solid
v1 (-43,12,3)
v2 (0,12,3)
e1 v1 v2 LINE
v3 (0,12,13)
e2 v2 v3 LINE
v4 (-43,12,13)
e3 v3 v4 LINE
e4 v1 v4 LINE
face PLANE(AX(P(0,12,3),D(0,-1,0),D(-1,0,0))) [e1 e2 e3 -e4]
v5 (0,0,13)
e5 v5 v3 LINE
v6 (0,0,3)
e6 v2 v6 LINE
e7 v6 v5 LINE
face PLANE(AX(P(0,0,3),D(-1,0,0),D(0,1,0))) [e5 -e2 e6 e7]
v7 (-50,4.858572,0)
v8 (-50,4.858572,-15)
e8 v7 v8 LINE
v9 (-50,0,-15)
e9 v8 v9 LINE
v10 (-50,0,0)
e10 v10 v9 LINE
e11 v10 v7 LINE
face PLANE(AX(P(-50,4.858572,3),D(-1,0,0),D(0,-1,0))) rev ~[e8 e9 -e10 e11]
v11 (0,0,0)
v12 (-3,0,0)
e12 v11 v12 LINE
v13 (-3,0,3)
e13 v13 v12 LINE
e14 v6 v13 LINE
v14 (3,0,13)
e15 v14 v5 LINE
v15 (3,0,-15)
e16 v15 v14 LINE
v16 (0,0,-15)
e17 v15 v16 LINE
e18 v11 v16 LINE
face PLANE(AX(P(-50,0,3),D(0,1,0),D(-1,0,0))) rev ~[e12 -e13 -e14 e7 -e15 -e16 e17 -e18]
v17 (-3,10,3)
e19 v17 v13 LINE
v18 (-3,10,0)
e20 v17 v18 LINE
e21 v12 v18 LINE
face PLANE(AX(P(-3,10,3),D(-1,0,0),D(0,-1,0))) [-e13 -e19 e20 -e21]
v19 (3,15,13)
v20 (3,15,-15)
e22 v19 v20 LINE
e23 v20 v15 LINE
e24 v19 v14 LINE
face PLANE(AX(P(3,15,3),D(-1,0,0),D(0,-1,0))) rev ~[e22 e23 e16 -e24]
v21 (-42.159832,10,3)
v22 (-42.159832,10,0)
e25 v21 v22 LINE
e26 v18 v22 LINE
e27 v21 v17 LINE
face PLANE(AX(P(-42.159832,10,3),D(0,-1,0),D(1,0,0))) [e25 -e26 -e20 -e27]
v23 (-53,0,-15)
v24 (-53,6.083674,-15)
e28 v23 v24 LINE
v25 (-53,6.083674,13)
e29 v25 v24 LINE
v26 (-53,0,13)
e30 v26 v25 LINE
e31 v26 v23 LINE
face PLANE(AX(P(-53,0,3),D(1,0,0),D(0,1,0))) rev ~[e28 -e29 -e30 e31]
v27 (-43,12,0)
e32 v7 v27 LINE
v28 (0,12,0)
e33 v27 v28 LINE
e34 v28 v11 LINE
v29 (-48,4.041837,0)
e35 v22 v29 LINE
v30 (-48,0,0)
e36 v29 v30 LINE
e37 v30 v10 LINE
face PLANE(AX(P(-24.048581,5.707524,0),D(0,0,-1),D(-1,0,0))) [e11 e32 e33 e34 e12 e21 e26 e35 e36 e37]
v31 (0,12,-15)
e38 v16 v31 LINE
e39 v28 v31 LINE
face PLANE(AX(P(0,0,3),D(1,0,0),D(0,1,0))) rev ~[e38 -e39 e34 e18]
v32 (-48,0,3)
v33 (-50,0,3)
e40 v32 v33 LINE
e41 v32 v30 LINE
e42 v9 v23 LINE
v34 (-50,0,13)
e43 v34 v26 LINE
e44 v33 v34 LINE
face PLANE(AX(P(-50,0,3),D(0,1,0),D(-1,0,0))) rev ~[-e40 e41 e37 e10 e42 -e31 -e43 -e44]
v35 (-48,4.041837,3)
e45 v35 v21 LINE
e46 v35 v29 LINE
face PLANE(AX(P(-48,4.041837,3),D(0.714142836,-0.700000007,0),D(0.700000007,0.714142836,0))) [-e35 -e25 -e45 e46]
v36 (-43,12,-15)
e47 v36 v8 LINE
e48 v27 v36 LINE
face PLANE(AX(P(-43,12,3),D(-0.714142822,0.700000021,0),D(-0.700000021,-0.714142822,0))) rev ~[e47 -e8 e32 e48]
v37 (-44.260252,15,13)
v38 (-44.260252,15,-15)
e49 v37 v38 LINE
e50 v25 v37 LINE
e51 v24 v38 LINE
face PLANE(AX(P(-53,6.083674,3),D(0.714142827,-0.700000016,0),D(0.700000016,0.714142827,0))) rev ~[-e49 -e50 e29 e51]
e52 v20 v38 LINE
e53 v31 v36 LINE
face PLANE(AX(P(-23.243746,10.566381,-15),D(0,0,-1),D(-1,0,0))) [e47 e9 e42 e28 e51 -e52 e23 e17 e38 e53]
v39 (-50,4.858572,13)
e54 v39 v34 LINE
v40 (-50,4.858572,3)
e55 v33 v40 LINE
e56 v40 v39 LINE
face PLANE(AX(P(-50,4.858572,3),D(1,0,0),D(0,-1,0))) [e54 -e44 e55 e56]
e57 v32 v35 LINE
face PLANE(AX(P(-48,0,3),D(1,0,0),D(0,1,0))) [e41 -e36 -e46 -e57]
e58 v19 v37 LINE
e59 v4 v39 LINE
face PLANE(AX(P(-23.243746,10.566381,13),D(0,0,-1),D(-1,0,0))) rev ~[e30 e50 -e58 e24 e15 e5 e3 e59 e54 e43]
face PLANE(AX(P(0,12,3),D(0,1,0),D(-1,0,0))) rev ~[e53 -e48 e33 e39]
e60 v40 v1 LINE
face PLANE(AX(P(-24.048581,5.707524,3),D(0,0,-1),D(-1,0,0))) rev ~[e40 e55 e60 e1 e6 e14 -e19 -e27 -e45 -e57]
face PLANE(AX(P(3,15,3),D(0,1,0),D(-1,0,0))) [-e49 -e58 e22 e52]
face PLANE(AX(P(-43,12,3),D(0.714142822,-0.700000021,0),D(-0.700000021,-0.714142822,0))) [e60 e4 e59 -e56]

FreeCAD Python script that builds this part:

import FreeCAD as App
import Part
import Sketcher
from FreeCAD import Vector
Q = App.Units.Quantity

doc = App.newDocument("Part")
params = doc.addObject("Spreadsheet::Sheet", "Params")
for row, (alias, value) in enumerate([
    ("sketch1_width", "43 mm"),
    ("sketch1_width2", "50 mm"),
    ("sketch1_height", "12 mm"),
    ("sketch1_length", "10 mm"),
    ("pad1_length", "3 mm"),
    ("sketch2_width", "3 mm"),
    ("sketch2_width2", "43 mm"),
    ("sketch2_height", "12 mm"),
    ("sketch2_height2", "15 mm"),
    ("sketch2_length", "10 mm"),
    ("pad2_length", "10 mm"),
    ("pad2_length2", "18 mm"),
    ("sketch3_width", "45 mm"),
    ("sketch3_height", "10 mm"),
    ("pocket1_length", "5 mm"),
], start=1):
    params.set(f"A{row}", alias)
    params.set(f"B{row}", "=" + value)
    params.setAlias(f"B{row}", alias)

body = doc.addObject("PartDesign::Body", "Body")

# Sketch on XY plane
sketch1 = body.newObject("Sketcher::SketchObject", "Sketch")
sketch1.AttachmentSupport = (doc.getObject("XY_Plane"), [""])
sketch1.MapMode = "FlatFace"
sketch1.addGeometry(Part.LineSegment(Vector(0, 12, 0), Vector(-43, 12, 0)), False)
sketch1.addGeometry(Part.LineSegment(Vector(-43, 12, 0), Vector(-50, 4.9, 0)), False)
sketch1.addGeometry(Part.LineSegment(Vector(-50, 4.9, 0), Vector(-50, 0, 0)), False)
sketch1.addGeometry(Part.LineSegment(Vector(-50, 0, 0), Vector(0, 0, 0)), False)
sketch1.addGeometry(Part.LineSegment(Vector(0, 0, 0), Vector(0, 12, 0)), False)
sketch1.addConstraint(Sketcher.Constraint("Coincident", 0, 2, 1, 1))
sketch1.addConstraint(Sketcher.Constraint("Coincident", 1, 2, 2, 1))
sketch1.addConstraint(Sketcher.Constraint("Coincident", 2, 2, 3, 1))
sketch1.addConstraint(Sketcher.Constraint("Coincident", 3, 2, 4, 1))
sketch1.addConstraint(Sketcher.Constraint("Coincident", 4, 2, 0, 1))
sketch1.addConstraint(Sketcher.Constraint("Horizontal", 0))
sketch1.addConstraint(Sketcher.Constraint("Vertical", 2))
sketch1.addConstraint(Sketcher.Constraint("Horizontal", 3))
sketch1.addConstraint(Sketcher.Constraint("Vertical", 4))
sketch1.addConstraint(Sketcher.Constraint("Coincident", 3, 2, -1, 1))
sketch1.addConstraint(Sketcher.Constraint("DistanceX", 0, 2, 0, 1, Q("43 mm")))
sketch1.addConstraint(Sketcher.Constraint("DistanceX", 3, 1, 3, 2, Q("50 mm")))
sketch1.addConstraint(Sketcher.Constraint("DistanceY", 4, 1, 4, 2, Q("12 mm")))
sketch1.addConstraint(Sketcher.Constraint("Distance", 1, Q("10 mm")))
sketch1.setExpression("Constraints[10]", "Params.sketch1_width")
sketch1.setExpression("Constraints[11]", "Params.sketch1_width2")
sketch1.setExpression("Constraints[12]", "Params.sketch1_height")
sketch1.setExpression("Constraints[13]", "Params.sketch1_length")
pad1 = body.newObject("PartDesign::Pad", "Pad")
pad1.Profile = sketch1
pad1.setExpression("Length", "Params.pad1_length")

# Sketch on XY plane
sketch2 = body.newObject("Sketcher::SketchObject", "Sketch001")
sketch2.AttachmentSupport = (doc.getObject("XY_Plane"), [""])
sketch2.MapMode = "FlatFace"
sketch2.AttachmentOffset = App.Placement(Vector(0, 0, 3), App.Rotation())
sketch2.addGeometry(Part.LineSegment(Vector(-53, 0, 0), Vector(-50, 0, 0)), False)
sketch2.addGeometry(Part.LineSegment(Vector(-50, 0, 0), Vector(-50, 4.9, 0)), False)
sketch2.addGeometry(Part.LineSegment(Vector(-50, 4.9, 0), Vector(-43, 12, 0)), False)
sketch2.addGeometry(Part.LineSegment(Vector(-43, 12, 0), Vector(0, 12, 0)), False)
sketch2.addGeometry(Part.LineSegment(Vector(0, 12, 0), Vector(0, 0, 0)), False)
sketch2.addGeometry(Part.LineSegment(Vector(0, 0, 0), Vector(3, 0, 0)), False)
sketch2.addGeometry(Part.LineSegment(Vector(3, 0, 0), Vector(3, 15, 0)), False)
sketch2.addGeometry(Part.LineSegment(Vector(3, 15, 0), Vector(-44.3, 15, 0)), False)
sketch2.addGeometry(Part.LineSegment(Vector(-44.3, 15, 0), Vector(-53, 6.1, 0)), False)
sketch2.addGeometry(Part.LineSegment(Vector(-53, 6.1, 0), Vector(-53, 0, 0)), False)
sketch2.addConstraint(Sketcher.Constraint("Coincident", 0, 2, 1, 1))
sketch2.addConstraint(Sketcher.Constraint("Coincident", 1, 2, 2, 1))
sketch2.addConstraint(Sketcher.Constraint("Coincident", 2, 2, 3, 1))
sketch2.addConstraint(Sketcher.Constraint("Coincident", 3, 2, 4, 1))
sketch2.addConstraint(Sketcher.Constraint("Coincident", 4, 2, 5, 1))
sketch2.addConstraint(Sketcher.Constraint("Coincident", 5, 2, 6, 1))
sketch2.addConstraint(Sketcher.Constraint("Coincident", 6, 2, 7, 1))
sketch2.addConstraint(Sketcher.Constraint("Coincident", 7, 2, 8, 1))
sketch2.addConstraint(Sketcher.Constraint("Coincident", 8, 2, 9, 1))
sketch2.addConstraint(Sketcher.Constraint("Coincident", 9, 2, 0, 1))
sketch2.addConstraint(Sketcher.Constraint("Horizontal", 0))
sketch2.addConstraint(Sketcher.Constraint("Vertical", 1))
sketch2.addConstraint(Sketcher.Constraint("Horizontal", 3))
sketch2.addConstraint(Sketcher.Constraint("Vertical", 4))
sketch2.addConstraint(Sketcher.Constraint("Horizontal", 5))
sketch2.addConstraint(Sketcher.Constraint("Vertical", 6))
sketch2.addConstraint(Sketcher.Constraint("Horizontal", 7))
sketch2.addConstraint(Sketcher.Constraint("Vertical", 9))
sketch2.addConstraint(Sketcher.Constraint("Coincident", 4, 2, -1, 1))
sketch2.addConstraint(Sketcher.Constraint("PointOnObject", 0, 2, -1))
sketch2.addConstraint(Sketcher.Constraint("Parallel", 2, 8))
sketch2.addConstraint(Sketcher.Constraint("Equal", 0, 5))
sketch2.addConstraint(Sketcher.Constraint("DistanceX", 0, 1, 0, 2, Q("3 mm")))
sketch2.addConstraint(Sketcher.Constraint("DistanceX", 3, 1, 3, 2, Q("43 mm")))
sketch2.addConstraint(Sketcher.Constraint("DistanceY", 4, 2, 4, 1, Q("12 mm")))
sketch2.addConstraint(Sketcher.Constraint("DistanceY", 6, 1, 6, 2, Q("15 mm")))
sketch2.addConstraint(Sketcher.Constraint("Distance", 2, Q("10 mm")))
sketch2.addConstraint(Sketcher.Constraint("DistanceX", 0, 2, -1, 1, Q("50 mm")))
sketch2.addConstraint(Sketcher.Constraint("DistanceX", 7, 2, 7, 1, Q("47.260252 mm")))
sketch2.setExpression("Constraints[22]", "Params.sketch2_width")
sketch2.setExpression("Constraints[23]", "Params.sketch2_width2")
sketch2.setExpression("Constraints[24]", "Params.sketch2_height")
sketch2.setExpression("Constraints[25]", "Params.sketch2_height2")
sketch2.setExpression("Constraints[26]", "Params.sketch2_length")
pad2 = body.newObject("PartDesign::Pad", "Pad001")
pad2.Profile = sketch2
pad2.Type = "TwoLengths"
pad2.setExpression("Length", "Params.pad2_length")
pad2.setExpression("Length2", "Params.pad2_length2")

# Sketch on XY plane
sketch3 = body.newObject("Sketcher::SketchObject", "Sketch002")
sketch3.AttachmentSupport = (doc.getObject("XY_Plane"), [""])
sketch3.MapMode = "FlatFace"
sketch3.AttachmentOffset = App.Placement(Vector(0, 0, 3), App.Rotation())
sketch3.addGeometry(Part.LineSegment(Vector(-48, 4, 0), Vector(-48, 0, 0)), False)
sketch3.addGeometry(Part.LineSegment(Vector(-48, 0, 0), Vector(-3, 0, 0)), False)
sketch3.addGeometry(Part.LineSegment(Vector(-3, 0, 0), Vector(-3, 10, 0)), False)
sketch3.addGeometry(Part.LineSegment(Vector(-3, 10, 0), Vector(-42.2, 10, 0)), False)
sketch3.addGeometry(Part.LineSegment(Vector(-42.2, 10, 0), Vector(-48, 4, 0)), False)
sketch3.addConstraint(Sketcher.Constraint("Coincident", 0, 2, 1, 1))
sketch3.addConstraint(Sketcher.Constraint("Coincident", 1, 2, 2, 1))
sketch3.addConstraint(Sketcher.Constraint("Coincident", 2, 2, 3, 1))
sketch3.addConstraint(Sketcher.Constraint("Coincident", 3, 2, 4, 1))
sketch3.addConstraint(Sketcher.Constraint("Coincident", 4, 2, 0, 1))
sketch3.addConstraint(Sketcher.Constraint("Vertical", 0))
sketch3.addConstraint(Sketcher.Constraint("Horizontal", 1))
sketch3.addConstraint(Sketcher.Constraint("Vertical", 2))
sketch3.addConstraint(Sketcher.Constraint("Horizontal", 3))
sketch3.addConstraint(Sketcher.Constraint("PointOnObject", 0, 2, -1))
sketch3.addConstraint(Sketcher.Constraint("DistanceX", 1, 1, 1, 2, Q("45 mm")))
sketch3.addConstraint(Sketcher.Constraint("DistanceY", 2, 1, 2, 2, Q("10 mm")))
sketch3.addConstraint(Sketcher.Constraint("DistanceX", 0, 2, -1, 1, Q("48 mm")))
sketch3.addConstraint(Sketcher.Constraint("DistanceX", 3, 2, 3, 1, Q("39.159832 mm")))
sketch3.addConstraint(Sketcher.Constraint("DistanceY", 0, 2, 0, 1, Q("4.041837 mm")))
sketch3.setExpression("Constraints[10]", "Params.sketch3_width")
sketch3.setExpression("Constraints[11]", "Params.sketch3_height")
pocket1 = body.newObject("PartDesign::Pocket", "Pocket")
pocket1.Profile = sketch3
pocket1.setExpression("Length", "Params.pocket1_length")

doc.recompute()
